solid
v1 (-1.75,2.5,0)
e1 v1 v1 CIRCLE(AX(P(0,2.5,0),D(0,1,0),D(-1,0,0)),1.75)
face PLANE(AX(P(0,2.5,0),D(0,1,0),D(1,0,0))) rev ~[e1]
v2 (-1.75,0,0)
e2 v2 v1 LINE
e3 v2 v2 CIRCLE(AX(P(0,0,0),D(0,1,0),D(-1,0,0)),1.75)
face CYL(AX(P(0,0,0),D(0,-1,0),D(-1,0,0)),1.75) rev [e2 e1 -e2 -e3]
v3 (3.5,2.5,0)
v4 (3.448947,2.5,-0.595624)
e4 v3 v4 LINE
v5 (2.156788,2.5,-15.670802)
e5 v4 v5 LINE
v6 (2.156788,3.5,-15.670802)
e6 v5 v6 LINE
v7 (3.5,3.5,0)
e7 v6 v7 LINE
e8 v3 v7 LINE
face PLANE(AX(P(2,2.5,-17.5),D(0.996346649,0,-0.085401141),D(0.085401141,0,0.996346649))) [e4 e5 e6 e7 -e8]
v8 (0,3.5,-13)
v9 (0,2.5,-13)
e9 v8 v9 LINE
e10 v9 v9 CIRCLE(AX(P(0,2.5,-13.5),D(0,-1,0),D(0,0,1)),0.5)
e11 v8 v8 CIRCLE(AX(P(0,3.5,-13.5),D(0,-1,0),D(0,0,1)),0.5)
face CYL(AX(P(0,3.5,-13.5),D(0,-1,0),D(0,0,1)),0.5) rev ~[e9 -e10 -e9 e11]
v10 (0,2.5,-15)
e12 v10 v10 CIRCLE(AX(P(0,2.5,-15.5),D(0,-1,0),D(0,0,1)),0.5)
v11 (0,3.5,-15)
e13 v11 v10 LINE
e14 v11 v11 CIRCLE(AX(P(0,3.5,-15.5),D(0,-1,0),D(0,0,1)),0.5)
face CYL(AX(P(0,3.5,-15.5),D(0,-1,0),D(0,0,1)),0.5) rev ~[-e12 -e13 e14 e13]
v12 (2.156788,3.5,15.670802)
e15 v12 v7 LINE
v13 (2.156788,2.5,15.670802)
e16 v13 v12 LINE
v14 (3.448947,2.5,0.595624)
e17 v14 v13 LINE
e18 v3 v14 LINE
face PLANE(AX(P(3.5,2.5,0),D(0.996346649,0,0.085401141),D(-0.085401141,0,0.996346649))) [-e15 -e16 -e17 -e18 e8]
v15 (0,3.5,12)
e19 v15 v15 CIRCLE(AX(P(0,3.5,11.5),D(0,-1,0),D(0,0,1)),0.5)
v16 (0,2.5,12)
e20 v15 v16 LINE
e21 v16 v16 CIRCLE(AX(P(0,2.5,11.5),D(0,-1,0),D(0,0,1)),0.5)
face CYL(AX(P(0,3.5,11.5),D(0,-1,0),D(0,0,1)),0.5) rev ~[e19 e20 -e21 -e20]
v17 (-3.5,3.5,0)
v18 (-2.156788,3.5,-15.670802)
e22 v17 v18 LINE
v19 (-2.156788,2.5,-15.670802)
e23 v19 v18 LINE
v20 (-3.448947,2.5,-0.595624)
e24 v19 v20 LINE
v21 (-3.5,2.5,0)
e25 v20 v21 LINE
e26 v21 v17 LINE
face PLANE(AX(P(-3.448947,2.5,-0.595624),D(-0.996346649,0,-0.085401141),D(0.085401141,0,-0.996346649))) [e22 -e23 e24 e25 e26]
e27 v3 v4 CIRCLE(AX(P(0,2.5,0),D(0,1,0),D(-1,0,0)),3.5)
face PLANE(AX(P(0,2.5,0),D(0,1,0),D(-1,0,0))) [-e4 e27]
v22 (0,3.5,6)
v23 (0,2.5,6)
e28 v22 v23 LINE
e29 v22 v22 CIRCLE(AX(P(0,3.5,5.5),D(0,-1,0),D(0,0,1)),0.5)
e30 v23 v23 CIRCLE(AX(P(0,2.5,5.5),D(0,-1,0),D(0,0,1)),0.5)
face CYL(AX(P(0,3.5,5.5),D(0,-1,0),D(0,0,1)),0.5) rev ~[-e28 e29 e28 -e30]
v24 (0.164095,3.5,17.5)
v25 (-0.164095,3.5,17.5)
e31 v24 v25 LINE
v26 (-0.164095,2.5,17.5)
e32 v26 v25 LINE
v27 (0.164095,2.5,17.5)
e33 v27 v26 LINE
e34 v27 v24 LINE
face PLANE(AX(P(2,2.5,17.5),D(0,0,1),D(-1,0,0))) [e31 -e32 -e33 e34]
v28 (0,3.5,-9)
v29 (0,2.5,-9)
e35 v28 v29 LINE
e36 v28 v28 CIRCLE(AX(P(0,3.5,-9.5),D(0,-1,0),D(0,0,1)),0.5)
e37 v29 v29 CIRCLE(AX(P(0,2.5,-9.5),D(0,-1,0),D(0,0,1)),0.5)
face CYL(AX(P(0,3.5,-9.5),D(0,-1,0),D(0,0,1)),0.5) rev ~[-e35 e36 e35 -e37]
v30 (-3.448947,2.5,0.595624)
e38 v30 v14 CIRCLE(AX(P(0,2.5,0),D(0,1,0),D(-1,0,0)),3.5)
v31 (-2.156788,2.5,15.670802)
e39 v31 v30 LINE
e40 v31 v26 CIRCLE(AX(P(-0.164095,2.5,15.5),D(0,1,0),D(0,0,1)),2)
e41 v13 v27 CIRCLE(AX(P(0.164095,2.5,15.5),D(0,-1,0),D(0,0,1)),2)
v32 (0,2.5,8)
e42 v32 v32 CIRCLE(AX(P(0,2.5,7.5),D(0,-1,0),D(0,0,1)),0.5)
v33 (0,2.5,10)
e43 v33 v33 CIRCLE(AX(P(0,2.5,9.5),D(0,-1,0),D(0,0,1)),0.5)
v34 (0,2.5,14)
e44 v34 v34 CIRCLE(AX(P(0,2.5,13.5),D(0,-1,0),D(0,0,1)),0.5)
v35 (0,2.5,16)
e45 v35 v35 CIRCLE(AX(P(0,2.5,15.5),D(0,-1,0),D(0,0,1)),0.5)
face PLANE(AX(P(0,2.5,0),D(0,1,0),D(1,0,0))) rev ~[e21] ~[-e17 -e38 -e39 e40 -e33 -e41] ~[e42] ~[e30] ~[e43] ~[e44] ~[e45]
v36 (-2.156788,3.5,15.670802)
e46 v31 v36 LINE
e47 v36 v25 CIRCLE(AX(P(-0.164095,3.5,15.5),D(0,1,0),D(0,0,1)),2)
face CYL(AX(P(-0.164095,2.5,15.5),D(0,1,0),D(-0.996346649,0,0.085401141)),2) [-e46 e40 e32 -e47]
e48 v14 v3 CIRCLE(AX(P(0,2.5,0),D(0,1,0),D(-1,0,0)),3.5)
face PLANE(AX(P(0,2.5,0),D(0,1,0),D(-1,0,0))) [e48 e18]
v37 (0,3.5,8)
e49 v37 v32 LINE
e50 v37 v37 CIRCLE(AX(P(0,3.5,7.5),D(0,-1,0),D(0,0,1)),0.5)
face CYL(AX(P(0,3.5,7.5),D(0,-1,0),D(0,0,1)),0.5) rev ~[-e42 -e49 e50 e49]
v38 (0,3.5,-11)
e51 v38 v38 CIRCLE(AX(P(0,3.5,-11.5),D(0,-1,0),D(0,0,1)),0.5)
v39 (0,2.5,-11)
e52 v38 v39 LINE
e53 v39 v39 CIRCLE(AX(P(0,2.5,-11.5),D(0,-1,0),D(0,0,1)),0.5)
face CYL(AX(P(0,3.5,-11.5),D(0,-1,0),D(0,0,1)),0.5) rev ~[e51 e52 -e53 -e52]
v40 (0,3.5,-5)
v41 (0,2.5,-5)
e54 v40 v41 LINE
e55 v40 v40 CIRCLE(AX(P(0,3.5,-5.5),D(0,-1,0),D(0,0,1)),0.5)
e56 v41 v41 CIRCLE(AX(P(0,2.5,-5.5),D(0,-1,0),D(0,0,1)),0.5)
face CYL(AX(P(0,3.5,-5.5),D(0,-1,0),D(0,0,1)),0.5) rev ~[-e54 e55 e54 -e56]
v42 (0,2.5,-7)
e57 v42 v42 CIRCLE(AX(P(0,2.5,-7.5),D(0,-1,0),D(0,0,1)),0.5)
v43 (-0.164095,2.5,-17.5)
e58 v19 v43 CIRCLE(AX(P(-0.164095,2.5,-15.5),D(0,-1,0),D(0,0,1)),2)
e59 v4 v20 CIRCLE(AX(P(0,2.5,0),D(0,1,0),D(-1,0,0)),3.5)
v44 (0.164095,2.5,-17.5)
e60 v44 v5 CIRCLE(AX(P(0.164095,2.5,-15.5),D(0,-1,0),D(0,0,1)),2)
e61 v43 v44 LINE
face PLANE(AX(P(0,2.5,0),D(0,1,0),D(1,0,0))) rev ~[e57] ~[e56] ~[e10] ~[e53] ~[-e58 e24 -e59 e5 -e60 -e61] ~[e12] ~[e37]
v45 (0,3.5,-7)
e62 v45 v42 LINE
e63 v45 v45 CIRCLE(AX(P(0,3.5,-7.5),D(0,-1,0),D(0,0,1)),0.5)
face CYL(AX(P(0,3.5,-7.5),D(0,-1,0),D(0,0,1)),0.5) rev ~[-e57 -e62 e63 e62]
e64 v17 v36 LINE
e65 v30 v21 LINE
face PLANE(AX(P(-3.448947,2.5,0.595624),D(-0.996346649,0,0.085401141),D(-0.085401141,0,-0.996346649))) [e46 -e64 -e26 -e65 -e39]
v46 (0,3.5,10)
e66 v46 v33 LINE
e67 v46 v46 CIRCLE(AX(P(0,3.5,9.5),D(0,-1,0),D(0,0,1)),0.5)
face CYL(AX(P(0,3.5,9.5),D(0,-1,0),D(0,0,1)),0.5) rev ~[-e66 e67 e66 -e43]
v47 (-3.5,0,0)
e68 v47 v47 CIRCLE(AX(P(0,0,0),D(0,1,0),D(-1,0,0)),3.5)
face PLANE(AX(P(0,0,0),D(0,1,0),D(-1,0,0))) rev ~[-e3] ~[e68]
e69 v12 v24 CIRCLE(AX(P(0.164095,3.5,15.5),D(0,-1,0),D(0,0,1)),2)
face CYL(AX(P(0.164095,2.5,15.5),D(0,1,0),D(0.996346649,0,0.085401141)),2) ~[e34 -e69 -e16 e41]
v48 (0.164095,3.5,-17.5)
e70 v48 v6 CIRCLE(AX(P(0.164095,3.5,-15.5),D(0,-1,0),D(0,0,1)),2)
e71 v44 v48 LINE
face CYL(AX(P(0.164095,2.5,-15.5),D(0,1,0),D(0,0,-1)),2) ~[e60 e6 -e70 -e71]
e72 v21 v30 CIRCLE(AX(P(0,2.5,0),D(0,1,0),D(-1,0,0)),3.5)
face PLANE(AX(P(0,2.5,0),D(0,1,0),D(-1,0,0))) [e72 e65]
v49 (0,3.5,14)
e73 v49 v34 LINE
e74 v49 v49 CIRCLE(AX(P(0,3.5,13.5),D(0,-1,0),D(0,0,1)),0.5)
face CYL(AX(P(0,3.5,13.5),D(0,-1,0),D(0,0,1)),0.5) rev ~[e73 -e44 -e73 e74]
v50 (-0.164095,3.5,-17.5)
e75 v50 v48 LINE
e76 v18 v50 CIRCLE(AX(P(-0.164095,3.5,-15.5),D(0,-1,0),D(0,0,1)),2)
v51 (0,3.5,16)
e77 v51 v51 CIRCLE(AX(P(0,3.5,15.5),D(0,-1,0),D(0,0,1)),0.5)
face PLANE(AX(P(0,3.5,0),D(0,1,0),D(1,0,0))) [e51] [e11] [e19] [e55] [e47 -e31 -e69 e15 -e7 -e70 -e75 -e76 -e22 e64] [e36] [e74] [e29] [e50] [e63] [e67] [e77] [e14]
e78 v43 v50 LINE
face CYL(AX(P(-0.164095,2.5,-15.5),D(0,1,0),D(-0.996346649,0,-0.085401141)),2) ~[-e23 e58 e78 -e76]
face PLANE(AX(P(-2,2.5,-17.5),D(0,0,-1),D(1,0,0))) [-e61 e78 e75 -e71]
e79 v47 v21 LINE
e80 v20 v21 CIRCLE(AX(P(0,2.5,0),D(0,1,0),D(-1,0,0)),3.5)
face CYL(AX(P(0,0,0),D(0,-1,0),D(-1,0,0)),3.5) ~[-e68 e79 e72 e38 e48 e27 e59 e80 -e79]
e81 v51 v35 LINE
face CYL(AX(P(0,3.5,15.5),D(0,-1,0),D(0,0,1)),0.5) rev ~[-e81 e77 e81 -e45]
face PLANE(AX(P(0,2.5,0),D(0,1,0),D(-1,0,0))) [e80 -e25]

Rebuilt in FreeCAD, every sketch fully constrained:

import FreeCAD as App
import Part
import Sketcher
Q = App.Units.Quantity


def edges_at(feature, points):
    """Names of the edges that pass closest to the given points."""
    edges = feature.Shape.Edges
    near = lambda p: min(range(len(edges)), key=lambda i: edges[i].distToShape(Part.Vertex(*p))[0])
    return sorted({f"Edge{near(p) + 1}" for p in points})


def add_polygon(sketch, points):
    """Adds a closed chain of lines whose ends are joined by coincident constraints."""
    first, n = sketch.GeometryCount, len(points)
    for a, b in zip(points, points[1:] + points[:1]):
        sketch.addGeometry(Part.LineSegment(App.Vector(*a, 0), App.Vector(*b, 0)), False)
    for i in range(n):
        sketch.addConstraint(Sketcher.Constraint("Coincident", first + i, 2, first + (i + 1) % n, 1))

doc = App.newDocument("Part")
body = doc.addObject("PartDesign::Body", "Body")

sketch1 = body.newObject("Sketcher::SketchObject", "Sketch")
sketch1.AttachmentSupport = (doc.getObject("XZ_Plane"), [""])
sketch1.MapMode = "FlatFace"
sketch1.addGeometry([
    Part.Circle(App.Vector(0, 0, 0), App.Vector(0, 0, 1), 3.5),
    Part.Circle(App.Vector(0, 0, 0), App.Vector(0, 0, 1), 1.75),
], False)
sketch1.addConstraint([
    Sketcher.Constraint("Coincident", 0, 3, -1, 1),
    Sketcher.Constraint("Coincident", 1, 3, -1, 1),
    Sketcher.Constraint("Diameter", 0, 7.0),
    Sketcher.Constraint("Diameter", 1, 3.5),
])
pad1 = body.newObject("PartDesign::Pad", "Pad")
pad1.Profile = sketch1
pad1.Length = 2.5
pad1.Reversed = True

sketch2 = body.newObject("Sketcher::SketchObject", "Sketch001")
sketch2.AttachmentSupport = (doc.getObject("XZ_Plane"), [""])
sketch2.MapMode = "FlatFace"
sketch2.AttachmentOffset = App.Placement(App.Vector(0, 0, -2.5), App.Rotation())
add_polygon(sketch2, [(2, -17.5), (-2, -17.5), (-3.5, 0), (-2, 17.5), (2, 17.5), (3.5, 0)])
sketch2.addConstraint([
    Sketcher.Constraint("Horizontal", 0),
    Sketcher.Constraint("Horizontal", 3),
    Sketcher.Constraint("Symmetric", 0, 2, 3, 2, -1, 1),
    Sketcher.Constraint("Symmetric", 1, 2, 4, 2, -1, 1),
    Sketcher.Constraint("PointOnObject", 1, 2, -1),
    Sketcher.Constraint("Parallel", 2, 5),
    Sketcher.Constraint("Vertical", 0, 2, 2, 2),
    Sketcher.Constraint("DistanceX", 0, 2, 0, 1, 4.0),
    Sketcher.Constraint("DistanceY", 0, 2, 2, 2, 35.0),
    Sketcher.Constraint("Angle", 1, Q("94.899 deg")),
])
pad2 = body.newObject("PartDesign::Pad", "Pad001")
pad2.Profile = sketch2
pad2.Length = 1
pad2.Reversed = True

sketch3 = body.newObject("Sketcher::SketchObject", "Sketch002")
sketch3.AttachmentSupport = (doc.getObject("XZ_Plane"), [""])
sketch3.MapMode = "FlatFace"
sketch3.AttachmentOffset = App.Placement(App.Vector(0, 0, -3.5), App.Rotation())
sketch3.addGeometry([
    Part.Circle(App.Vector(0, 15.5, 0), App.Vector(0, 0, 1), 0.5),
    Part.Circle(App.Vector(0, 13.5, 0), App.Vector(0, 0, 1), 0.5),
    Part.Circle(App.Vector(0, 11.5, 0), App.Vector(0, 0, 1), 0.5),
    Part.Circle(App.Vector(0, 9.5, 0), App.Vector(0, 0, 1), 0.5),
    Part.Circle(App.Vector(0, 7.5, 0), App.Vector(0, 0, 1), 0.5),
    Part.Circle(App.Vector(0, 5.5, 0), App.Vector(0, 0, 1), 0.5),
    Part.Circle(App.Vector(0, -5.5, 0), App.Vector(0, 0, 1), 0.5),
    Part.Circle(App.Vector(0, -7.5, 0), App.Vector(0, 0, 1), 0.5),
    Part.Circle(App.Vector(0, -9.5, 0), App.Vector(0, 0, 1), 0.5),
    Part.Circle(App.Vector(0, -11.5, 0), App.Vector(0, 0, 1), 0.5),
    Part.Circle(App.Vector(0, -13.5, 0), App.Vector(0, 0, 1), 0.5),
    Part.Circle(App.Vector(0, -15.5, 0), App.Vector(0, 0, 1), 0.5),
], False)
sketch3.addConstraint([
    Sketcher.Constraint("Equal", 0, 1),
    Sketcher.Constraint("Equal", 1, 2),
    Sketcher.Constraint("Equal", 2, 3),
    Sketcher.Constraint("Equal", 3, 4),
    Sketcher.Constraint("Equal", 4, 5),
    Sketcher.Constraint("Equal", 5, 6),
    Sketcher.Constraint("Equal", 6, 7),
    Sketcher.Constraint("Equal", 7, 8),
    Sketcher.Constraint("Equal", 8, 9),
    Sketcher.Constraint("Equal", 9, 10),
    Sketcher.Constraint("Equal", 10, 11),
    Sketcher.Constraint("Symmetric", 5, 3, 6, 3, -1, 1),
    Sketcher.Constraint("Symmetric", 4, 3, 7, 3, -1, 1),
    Sketcher.Constraint("Symmetric", 3, 3, 8, 3, -1, 1),
    Sketcher.Constraint("Symmetric", 2, 3, 9, 3, -1, 1),
    Sketcher.Constraint("Symmetric", 1, 3, 10, 3, -1, 1),
    Sketcher.Constraint("Symmetric", 0, 3, 11, 3, -1, 1),
    Sketcher.Constraint("PointOnObject", 0, 3, -2),
    Sketcher.Constraint("PointOnObject", 1, 3, -2),
    Sketcher.Constraint("PointOnObject", 2, 3, -2),
    Sketcher.Constraint("PointOnObject", 3, 3, -2),
    Sketcher.Constraint("PointOnObject", 4, 3, -2),
    Sketcher.Constraint("PointOnObject", 5, 3, -2),
    Sketcher.Constraint("Diameter", 0, 1.0),
    Sketcher.Constraint("DistanceY", 1, 3, 0, 3, 2.0),
    Sketcher.Constraint("DistanceY", 2, 3, 1, 3, 2.0),
    Sketcher.Constraint("DistanceY", 3, 3, 2, 3, 2.0),
    Sketcher.Constraint("DistanceY", 4, 3, 3, 3, 2.0),
    Sketcher.Constraint("DistanceY", 5, 3, 4, 3, 2.0),
    Sketcher.Constraint("DistanceY", 6, 3, 5, 3, 11.0),
])
doc.recompute()
hole = body.newObject("PartDesign::Hole", "Hole")
hole.Profile = sketch3
hole.ThreadType = "None"
hole.Diameter = 1
hole.DepthType = "Dimension"
hole.Depth = 8
hole.DrillPoint = "Angled"
hole.DrillPointAngle = 118
hole.Reversed = True
doc.recompute()

fillet = body.newObject("PartDesign::Fillet", "Fillet")
fillet.Base = (hole, edges_at(hole, [
    (2, 3, 17.5),
    (-2, 3, 17.5),
    (2, 3, -17.5),
    (-2, 3, -17.5),
]))
fillet.Radius = 2

doc.recompute()
